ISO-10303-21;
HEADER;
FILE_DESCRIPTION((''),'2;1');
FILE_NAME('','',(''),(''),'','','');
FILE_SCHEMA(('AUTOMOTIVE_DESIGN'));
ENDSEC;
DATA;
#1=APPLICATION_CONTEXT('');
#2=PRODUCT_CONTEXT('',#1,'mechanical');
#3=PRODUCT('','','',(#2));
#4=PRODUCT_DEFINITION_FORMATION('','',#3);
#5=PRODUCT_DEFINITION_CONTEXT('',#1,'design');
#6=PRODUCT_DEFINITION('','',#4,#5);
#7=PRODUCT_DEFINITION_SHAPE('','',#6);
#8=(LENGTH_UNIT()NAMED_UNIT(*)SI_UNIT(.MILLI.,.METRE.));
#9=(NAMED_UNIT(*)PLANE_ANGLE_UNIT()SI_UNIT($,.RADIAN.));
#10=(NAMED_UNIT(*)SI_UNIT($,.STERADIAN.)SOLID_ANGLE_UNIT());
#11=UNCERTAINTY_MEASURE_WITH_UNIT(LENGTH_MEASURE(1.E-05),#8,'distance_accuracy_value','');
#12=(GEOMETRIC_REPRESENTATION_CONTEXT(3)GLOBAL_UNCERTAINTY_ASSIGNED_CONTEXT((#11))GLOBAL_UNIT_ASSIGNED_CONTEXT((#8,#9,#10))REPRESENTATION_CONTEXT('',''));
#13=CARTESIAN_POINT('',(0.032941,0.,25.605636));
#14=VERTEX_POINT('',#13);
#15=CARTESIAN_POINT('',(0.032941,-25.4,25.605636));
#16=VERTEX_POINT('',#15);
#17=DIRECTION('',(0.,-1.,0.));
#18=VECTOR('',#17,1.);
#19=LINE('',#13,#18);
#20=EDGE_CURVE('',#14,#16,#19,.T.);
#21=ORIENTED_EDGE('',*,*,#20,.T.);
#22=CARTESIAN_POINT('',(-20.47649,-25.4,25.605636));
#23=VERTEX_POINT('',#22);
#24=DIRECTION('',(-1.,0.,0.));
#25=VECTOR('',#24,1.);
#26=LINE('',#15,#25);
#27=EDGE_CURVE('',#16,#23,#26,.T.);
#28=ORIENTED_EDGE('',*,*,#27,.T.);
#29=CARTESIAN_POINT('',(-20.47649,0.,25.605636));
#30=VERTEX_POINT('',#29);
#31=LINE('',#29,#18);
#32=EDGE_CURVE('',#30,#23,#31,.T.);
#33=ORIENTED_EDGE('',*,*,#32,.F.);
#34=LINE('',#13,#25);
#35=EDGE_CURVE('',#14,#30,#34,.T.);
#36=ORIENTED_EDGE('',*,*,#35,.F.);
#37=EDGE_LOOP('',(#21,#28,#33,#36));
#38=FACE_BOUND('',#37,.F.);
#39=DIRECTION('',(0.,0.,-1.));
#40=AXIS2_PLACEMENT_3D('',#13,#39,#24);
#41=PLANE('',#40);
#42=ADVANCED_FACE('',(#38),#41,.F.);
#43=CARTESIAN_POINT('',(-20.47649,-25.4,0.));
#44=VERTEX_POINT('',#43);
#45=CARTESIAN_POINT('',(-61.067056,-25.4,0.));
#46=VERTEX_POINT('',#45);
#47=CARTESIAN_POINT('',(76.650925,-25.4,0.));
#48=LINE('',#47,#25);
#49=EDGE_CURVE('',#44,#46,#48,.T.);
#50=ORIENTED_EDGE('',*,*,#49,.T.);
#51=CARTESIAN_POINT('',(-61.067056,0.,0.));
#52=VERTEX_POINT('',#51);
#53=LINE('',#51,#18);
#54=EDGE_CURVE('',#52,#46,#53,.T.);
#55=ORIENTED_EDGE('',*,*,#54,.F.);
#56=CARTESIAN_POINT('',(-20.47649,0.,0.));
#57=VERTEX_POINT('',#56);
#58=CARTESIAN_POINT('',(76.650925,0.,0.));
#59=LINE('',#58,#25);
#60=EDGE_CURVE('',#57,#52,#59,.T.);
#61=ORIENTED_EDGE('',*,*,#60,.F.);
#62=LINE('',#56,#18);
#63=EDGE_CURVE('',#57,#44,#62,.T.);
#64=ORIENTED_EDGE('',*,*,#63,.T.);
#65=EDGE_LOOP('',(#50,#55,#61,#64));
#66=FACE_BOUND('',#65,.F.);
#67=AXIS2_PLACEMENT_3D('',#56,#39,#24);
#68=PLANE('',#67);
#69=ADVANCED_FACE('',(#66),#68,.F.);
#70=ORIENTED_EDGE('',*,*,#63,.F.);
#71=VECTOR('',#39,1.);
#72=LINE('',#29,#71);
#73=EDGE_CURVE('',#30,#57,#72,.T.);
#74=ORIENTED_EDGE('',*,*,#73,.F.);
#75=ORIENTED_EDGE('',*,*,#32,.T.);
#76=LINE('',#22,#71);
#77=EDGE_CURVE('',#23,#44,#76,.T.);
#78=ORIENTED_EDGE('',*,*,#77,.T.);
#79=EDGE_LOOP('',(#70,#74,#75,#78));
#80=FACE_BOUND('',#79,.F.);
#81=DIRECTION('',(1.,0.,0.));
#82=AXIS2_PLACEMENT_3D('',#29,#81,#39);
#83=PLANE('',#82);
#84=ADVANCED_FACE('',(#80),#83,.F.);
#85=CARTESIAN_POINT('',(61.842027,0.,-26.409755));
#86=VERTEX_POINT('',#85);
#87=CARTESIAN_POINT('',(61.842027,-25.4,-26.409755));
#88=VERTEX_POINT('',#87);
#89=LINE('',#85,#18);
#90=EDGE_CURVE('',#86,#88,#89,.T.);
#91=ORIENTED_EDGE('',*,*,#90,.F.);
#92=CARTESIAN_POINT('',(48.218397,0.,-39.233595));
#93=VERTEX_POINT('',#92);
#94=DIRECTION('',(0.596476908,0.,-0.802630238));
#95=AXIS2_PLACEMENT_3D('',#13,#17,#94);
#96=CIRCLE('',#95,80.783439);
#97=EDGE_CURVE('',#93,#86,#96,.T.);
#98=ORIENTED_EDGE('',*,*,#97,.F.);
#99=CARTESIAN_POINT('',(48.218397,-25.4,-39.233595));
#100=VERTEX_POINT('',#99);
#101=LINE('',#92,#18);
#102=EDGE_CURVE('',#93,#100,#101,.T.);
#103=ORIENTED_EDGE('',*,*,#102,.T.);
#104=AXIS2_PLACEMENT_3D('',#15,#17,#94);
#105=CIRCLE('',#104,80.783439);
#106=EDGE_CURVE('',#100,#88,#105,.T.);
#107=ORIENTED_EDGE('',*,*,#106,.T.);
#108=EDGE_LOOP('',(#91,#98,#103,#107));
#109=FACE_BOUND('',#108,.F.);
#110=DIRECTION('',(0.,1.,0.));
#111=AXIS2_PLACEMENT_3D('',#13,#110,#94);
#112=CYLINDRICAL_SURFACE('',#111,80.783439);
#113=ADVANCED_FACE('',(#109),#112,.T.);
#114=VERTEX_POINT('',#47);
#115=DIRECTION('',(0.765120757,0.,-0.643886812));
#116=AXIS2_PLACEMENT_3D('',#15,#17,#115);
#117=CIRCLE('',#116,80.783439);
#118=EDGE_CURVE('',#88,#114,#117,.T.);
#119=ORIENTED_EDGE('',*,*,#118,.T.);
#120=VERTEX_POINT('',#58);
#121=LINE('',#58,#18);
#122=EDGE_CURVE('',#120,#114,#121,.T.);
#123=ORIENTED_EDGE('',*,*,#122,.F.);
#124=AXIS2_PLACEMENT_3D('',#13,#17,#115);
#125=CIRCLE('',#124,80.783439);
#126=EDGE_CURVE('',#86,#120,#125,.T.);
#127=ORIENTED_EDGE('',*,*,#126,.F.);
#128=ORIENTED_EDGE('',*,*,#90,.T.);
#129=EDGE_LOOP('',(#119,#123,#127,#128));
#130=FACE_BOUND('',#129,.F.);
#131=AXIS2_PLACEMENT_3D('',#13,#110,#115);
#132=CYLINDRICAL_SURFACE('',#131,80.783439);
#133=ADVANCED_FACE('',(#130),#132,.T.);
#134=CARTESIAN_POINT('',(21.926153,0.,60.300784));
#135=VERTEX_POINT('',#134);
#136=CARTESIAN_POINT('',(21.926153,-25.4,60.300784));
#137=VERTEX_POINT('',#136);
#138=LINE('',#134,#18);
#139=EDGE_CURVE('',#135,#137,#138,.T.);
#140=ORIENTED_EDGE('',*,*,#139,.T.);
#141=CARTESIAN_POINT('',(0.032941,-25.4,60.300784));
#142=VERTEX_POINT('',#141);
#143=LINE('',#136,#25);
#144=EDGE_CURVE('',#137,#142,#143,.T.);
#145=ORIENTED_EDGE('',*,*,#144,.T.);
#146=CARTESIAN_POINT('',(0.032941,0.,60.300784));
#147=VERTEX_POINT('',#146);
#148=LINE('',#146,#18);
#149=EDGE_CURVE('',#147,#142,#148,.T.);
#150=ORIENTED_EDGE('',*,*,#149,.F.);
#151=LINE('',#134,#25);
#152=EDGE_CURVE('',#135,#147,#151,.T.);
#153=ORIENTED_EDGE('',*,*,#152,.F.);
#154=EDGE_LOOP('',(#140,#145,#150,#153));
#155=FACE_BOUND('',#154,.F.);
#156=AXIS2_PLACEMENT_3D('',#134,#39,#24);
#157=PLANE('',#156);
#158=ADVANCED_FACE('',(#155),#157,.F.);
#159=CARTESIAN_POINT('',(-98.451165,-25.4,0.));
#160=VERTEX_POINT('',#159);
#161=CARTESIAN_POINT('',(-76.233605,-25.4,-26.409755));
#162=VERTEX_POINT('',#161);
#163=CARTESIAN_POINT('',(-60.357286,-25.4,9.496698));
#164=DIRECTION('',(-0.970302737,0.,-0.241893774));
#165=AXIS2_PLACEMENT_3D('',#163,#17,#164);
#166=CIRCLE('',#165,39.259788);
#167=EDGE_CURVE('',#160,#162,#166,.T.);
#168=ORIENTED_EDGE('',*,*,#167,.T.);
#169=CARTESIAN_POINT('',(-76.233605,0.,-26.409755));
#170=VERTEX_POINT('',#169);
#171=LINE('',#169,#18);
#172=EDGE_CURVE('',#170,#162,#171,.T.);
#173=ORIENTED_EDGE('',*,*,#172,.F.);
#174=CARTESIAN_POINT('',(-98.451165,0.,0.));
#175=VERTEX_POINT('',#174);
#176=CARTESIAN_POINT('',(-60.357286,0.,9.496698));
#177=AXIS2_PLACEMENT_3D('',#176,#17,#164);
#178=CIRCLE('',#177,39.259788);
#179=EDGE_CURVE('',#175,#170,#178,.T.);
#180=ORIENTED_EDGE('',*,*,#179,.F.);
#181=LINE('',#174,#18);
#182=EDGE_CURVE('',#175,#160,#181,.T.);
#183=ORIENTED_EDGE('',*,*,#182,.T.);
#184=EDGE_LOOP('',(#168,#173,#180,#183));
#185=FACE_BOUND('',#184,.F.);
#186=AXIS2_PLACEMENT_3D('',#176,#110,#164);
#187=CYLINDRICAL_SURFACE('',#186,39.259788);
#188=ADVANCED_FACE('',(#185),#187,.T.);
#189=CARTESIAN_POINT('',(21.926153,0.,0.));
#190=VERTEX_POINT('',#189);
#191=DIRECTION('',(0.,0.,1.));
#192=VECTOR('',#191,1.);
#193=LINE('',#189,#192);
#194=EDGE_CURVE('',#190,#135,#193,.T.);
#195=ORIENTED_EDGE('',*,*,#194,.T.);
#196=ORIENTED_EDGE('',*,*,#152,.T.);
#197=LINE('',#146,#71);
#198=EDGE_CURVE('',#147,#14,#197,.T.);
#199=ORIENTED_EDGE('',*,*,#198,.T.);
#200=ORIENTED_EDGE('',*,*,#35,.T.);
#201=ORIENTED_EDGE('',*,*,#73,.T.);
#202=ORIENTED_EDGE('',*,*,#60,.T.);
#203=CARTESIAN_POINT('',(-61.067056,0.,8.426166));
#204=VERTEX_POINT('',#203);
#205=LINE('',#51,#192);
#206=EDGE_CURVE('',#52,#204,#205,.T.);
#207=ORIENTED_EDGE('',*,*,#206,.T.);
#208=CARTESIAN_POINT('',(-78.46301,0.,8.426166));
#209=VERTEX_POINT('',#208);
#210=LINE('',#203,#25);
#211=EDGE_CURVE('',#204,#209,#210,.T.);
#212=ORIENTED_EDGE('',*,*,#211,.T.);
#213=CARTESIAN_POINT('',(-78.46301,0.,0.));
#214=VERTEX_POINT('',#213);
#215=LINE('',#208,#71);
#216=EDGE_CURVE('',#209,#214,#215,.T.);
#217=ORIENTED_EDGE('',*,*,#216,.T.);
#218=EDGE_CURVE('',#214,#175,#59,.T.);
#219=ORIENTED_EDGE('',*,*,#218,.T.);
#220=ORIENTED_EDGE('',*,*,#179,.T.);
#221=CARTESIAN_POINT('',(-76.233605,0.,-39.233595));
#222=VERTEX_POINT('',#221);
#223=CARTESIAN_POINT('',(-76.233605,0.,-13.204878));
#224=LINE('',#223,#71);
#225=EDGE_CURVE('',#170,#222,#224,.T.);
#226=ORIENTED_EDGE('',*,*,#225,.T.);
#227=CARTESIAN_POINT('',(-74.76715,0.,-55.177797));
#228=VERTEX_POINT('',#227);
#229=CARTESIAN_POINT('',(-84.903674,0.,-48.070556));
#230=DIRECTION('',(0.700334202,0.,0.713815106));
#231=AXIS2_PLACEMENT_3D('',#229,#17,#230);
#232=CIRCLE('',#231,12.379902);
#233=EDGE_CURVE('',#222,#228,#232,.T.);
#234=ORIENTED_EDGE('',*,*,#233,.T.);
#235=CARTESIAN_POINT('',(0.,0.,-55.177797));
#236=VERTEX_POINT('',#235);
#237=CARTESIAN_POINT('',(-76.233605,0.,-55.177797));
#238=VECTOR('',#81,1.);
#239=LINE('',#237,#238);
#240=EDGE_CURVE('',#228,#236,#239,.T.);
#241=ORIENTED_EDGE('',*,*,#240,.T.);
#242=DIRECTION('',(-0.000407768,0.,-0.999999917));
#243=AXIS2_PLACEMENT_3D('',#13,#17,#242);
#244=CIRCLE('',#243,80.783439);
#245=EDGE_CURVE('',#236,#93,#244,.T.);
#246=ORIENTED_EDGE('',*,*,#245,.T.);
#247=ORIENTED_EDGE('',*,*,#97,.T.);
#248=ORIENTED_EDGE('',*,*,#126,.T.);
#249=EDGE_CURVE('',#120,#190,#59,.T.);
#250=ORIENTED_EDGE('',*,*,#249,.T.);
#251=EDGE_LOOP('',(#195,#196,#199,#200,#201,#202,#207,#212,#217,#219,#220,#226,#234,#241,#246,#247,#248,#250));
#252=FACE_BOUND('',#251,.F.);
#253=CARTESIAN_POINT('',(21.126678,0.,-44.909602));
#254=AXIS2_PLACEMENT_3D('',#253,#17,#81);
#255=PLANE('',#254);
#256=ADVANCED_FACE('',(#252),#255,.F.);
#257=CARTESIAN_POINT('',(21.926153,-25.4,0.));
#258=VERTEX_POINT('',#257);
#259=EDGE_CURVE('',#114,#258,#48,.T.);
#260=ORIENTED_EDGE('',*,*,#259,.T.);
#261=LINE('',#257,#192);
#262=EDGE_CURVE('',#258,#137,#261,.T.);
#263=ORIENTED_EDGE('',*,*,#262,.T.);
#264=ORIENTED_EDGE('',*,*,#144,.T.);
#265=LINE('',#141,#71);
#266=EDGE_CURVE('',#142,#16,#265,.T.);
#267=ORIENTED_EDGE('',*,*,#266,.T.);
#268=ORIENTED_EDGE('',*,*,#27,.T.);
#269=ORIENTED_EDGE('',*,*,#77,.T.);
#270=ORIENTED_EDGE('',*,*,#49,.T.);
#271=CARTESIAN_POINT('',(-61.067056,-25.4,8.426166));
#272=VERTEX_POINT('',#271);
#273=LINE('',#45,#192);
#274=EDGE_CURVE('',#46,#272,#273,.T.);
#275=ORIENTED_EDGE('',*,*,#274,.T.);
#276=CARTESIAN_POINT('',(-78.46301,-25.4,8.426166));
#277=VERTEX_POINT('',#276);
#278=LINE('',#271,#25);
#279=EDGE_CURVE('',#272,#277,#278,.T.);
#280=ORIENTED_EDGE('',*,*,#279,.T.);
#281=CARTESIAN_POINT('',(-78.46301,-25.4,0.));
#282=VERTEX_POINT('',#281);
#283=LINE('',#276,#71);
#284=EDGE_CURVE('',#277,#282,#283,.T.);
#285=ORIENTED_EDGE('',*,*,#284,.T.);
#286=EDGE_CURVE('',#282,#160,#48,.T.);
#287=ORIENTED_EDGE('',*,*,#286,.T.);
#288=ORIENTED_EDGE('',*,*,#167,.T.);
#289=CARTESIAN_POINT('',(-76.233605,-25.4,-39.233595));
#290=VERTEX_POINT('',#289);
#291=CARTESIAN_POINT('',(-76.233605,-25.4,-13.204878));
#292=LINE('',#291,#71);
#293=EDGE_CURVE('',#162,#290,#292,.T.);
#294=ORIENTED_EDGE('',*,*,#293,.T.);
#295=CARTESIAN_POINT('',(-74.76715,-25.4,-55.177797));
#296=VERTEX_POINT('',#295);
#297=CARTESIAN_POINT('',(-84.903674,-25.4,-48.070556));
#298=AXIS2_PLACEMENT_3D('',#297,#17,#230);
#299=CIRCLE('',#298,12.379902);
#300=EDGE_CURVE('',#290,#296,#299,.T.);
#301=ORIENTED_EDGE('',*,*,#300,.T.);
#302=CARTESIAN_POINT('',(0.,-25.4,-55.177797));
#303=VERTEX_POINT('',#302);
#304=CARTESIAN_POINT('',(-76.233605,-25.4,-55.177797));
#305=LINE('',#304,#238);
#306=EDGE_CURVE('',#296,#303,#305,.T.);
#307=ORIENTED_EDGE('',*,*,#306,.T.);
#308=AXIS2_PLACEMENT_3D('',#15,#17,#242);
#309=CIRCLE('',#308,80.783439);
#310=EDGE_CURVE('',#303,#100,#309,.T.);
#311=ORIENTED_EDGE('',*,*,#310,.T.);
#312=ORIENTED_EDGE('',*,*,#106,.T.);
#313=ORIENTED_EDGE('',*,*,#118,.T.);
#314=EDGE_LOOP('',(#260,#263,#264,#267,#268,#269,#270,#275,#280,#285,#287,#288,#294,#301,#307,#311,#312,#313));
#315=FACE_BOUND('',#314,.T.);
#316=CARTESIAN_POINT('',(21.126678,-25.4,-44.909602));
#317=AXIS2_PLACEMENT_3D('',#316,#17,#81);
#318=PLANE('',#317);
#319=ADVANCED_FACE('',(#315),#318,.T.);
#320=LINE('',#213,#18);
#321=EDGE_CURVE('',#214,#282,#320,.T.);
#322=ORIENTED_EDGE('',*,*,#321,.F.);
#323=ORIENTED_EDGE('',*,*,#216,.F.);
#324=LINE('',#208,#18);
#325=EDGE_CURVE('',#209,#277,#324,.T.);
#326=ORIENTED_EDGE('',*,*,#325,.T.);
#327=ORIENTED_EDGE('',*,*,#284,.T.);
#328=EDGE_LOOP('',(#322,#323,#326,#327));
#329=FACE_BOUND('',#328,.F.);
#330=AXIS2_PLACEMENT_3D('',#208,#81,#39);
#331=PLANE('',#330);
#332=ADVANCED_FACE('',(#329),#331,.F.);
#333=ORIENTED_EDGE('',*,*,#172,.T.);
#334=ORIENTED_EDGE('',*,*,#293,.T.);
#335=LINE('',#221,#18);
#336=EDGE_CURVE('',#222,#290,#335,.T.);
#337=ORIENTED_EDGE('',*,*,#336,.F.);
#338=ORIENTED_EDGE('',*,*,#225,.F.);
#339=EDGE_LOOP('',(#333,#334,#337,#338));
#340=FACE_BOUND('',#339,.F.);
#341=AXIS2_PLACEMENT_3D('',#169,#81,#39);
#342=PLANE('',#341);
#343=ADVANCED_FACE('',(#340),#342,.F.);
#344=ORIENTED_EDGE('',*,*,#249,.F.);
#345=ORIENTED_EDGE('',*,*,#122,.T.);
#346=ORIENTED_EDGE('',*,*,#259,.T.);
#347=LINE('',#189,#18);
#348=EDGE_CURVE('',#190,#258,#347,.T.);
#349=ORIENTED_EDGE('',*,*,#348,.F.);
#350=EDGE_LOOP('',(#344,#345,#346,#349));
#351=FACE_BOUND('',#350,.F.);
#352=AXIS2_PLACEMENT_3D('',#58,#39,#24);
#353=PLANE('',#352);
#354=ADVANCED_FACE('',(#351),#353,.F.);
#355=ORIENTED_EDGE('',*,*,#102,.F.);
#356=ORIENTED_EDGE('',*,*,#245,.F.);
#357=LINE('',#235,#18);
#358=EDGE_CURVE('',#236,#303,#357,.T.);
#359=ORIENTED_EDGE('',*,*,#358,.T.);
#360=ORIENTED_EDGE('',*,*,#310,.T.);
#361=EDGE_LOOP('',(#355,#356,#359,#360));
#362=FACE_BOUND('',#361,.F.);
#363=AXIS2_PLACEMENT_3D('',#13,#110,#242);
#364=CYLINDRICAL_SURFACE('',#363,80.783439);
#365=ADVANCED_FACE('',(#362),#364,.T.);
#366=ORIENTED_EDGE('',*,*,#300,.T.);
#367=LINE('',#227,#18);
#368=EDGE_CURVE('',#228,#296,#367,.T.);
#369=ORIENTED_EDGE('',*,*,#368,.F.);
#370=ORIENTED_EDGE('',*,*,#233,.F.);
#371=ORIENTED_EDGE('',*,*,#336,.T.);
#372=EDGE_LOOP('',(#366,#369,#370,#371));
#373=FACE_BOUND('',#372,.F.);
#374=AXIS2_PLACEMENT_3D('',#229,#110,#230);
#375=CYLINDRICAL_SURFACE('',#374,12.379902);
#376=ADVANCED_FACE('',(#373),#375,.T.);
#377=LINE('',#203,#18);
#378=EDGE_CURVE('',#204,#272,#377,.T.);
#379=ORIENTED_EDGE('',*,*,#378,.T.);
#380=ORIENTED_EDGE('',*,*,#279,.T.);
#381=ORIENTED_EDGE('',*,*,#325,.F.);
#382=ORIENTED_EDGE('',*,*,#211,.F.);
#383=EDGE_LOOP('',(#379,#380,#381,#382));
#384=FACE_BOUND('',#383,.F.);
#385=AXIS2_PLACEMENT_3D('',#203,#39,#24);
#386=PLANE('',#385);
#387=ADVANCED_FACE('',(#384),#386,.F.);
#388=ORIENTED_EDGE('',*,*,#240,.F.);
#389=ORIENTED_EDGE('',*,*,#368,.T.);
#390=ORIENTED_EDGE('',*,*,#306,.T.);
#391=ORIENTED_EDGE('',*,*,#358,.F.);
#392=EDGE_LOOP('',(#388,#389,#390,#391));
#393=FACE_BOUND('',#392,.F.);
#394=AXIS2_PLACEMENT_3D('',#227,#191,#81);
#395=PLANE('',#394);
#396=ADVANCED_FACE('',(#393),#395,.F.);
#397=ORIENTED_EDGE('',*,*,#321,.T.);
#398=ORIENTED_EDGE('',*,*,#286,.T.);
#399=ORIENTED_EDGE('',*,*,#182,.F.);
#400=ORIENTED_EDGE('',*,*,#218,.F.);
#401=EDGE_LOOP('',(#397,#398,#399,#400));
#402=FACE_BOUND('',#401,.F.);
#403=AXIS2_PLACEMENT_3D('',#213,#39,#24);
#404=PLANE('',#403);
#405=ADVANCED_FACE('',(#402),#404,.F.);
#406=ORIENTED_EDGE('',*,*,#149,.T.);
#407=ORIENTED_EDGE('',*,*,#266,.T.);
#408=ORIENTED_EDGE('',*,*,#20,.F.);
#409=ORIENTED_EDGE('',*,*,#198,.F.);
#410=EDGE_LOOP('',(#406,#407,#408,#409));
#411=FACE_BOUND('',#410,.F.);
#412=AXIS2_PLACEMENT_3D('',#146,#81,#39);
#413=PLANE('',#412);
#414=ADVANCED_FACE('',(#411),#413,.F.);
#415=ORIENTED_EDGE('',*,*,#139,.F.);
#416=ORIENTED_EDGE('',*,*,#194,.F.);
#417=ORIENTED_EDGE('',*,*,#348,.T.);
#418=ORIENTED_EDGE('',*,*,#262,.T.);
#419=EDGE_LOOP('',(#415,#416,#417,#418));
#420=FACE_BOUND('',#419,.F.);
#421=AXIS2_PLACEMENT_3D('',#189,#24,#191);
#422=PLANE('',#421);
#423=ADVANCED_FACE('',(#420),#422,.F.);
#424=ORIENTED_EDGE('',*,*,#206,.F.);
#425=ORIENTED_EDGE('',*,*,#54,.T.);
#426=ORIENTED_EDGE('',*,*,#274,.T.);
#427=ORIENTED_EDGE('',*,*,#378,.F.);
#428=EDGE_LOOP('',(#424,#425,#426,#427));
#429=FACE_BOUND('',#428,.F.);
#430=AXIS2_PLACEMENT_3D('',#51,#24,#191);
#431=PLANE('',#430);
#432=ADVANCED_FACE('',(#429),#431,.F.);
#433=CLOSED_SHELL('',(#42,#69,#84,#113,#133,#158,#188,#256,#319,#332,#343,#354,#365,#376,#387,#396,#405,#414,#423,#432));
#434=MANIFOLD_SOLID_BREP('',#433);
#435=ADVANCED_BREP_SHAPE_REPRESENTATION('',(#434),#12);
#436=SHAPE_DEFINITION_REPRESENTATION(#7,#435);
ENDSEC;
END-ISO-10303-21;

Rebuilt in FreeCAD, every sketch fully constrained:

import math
import FreeCAD as App
import Part
import Sketcher
Q = App.Units.Quantity

doc = App.newDocument("Part")
body = doc.addObject("PartDesign::Body", "Body")

# Sketch on XZ plane
sketch1 = doc.addObject("Sketcher::SketchObject", "Sketch")
body.addObject(sketch1)
sketch1.AttachmentSupport = (doc.XZ_Plane, [""])
sketch1.MapMode = "FlatFace"
sketch1.addGeometry([
    Part.ArcOfCircle(Part.Circle(App.Vector(0.032941, 25.605636, 0), App.Vector(0, 0, 1), 80.783439), math.radians(-90.023363), math.radians(-53.382011)),  # 0
    Part.ArcOfCircle(Part.Circle(App.Vector(0.032941, 25.605636, 0), App.Vector(0, 0, 1), 80.783439), math.radians(-53.382011), math.radians(-40.082264)),  # 1
    Part.ArcOfCircle(Part.Circle(App.Vector(0.032941, 25.605636, 0), App.Vector(0, 0, 1), 80.783439), math.radians(-40.082264), math.radians(-18.479565)),  # 2
    Part.LineSegment(App.Vector(76.650925, 0, 0), App.Vector(21.926153, 0, 0)),  # 3
    Part.LineSegment(App.Vector(21.926153, 0, 0), App.Vector(21.926153, 60.300784, 0)),  # 4
    Part.LineSegment(App.Vector(21.926153, 60.300784, 0), App.Vector(0.032941, 60.300784, 0)),  # 5
    Part.LineSegment(App.Vector(0.032941, 60.300784, 0), App.Vector(0.032941, 25.605636, 0)),  # 6
    Part.LineSegment(App.Vector(0.032941, 25.605636, 0), App.Vector(-20.47649, 25.605636, 0)),  # 7
    Part.LineSegment(App.Vector(-20.47649, 25.605636, 0), App.Vector(-20.47649, 0, 0)),  # 8
    Part.LineSegment(App.Vector(-20.47649, 0, 0), App.Vector(-61.067056, 0, 0)),  # 9
    Part.LineSegment(App.Vector(-61.067056, 0, 0), App.Vector(-61.067056, 8.426166, 0)),  # 10
    Part.LineSegment(App.Vector(-61.067056, 8.426166, 0), App.Vector(-78.46301, 8.426166, 0)),  # 11
    Part.LineSegment(App.Vector(-78.46301, 8.426166, 0), App.Vector(-78.46301, 0, 0)),  # 12
    Part.LineSegment(App.Vector(-78.46301, 0, 0), App.Vector(-98.451165, 0, 0)),  # 13
    Part.ArcOfCircle(Part.Circle(App.Vector(-60.357286, 9.496698, 0), App.Vector(0, 0, 1), 39.259788), math.radians(-166.001661), math.radians(-113.852993)),  # 14
    Part.LineSegment(App.Vector(-76.233605, -26.409755, 0), App.Vector(-76.233605, -39.233595, 0)),  # 15
    Part.ArcOfCircle(Part.Circle(App.Vector(-84.903674, -48.070556, 0), App.Vector(0, 0, 1), 12.379902), math.radians(45.546177), math.radians(324.96372)),  # 16
    Part.LineSegment(App.Vector(-74.76715, -55.177797, 0), App.Vector(0, -55.177797, 0)),  # 17
], False)
sketch1.addConstraint([
    Sketcher.Constraint("Tangent", 0, 2, 1, 1),
    Sketcher.Constraint("Tangent", 1, 2, 2, 1),
    Sketcher.Constraint("Coincident", 2, 2, 3, 1),
    Sketcher.Constraint("Coincident", 3, 2, 4, 1),
    Sketcher.Constraint("Coincident", 4, 2, 5, 1),
    Sketcher.Constraint("Coincident", 5, 2, 6, 1),
    Sketcher.Constraint("Coincident", 6, 2, 7, 1),
    Sketcher.Constraint("Coincident", 7, 2, 8, 1),
    Sketcher.Constraint("Coincident", 8, 2, 9, 1),
    Sketcher.Constraint("Coincident", 9, 2, 10, 1),
    Sketcher.Constraint("Coincident", 10, 2, 11, 1),
    Sketcher.Constraint("Coincident", 11, 2, 12, 1),
    Sketcher.Constraint("Coincident", 12, 2, 13, 1),
    Sketcher.Constraint("Coincident", 13, 2, 14, 1),
    Sketcher.Constraint("Coincident", 14, 2, 15, 1),
    Sketcher.Constraint("Coincident", 15, 2, 16, 1),
    Sketcher.Constraint("Coincident", 16, 2, 17, 1),
    Sketcher.Constraint("Coincident", 17, 2, 0, 1),
    Sketcher.Constraint("Horizontal", 3),
    Sketcher.Constraint("Vertical", 4),
    Sketcher.Constraint("Horizontal", 5),
    Sketcher.Constraint("Vertical", 6),
    Sketcher.Constraint("Horizontal", 7),
    Sketcher.Constraint("Vertical", 8),
    Sketcher.Constraint("Horizontal", 9),
    Sketcher.Constraint("Vertical", 10),
    Sketcher.Constraint("Horizontal", 11),
    Sketcher.Constraint("Vertical", 12),
    Sketcher.Constraint("Horizontal", 13),
    Sketcher.Constraint("Vertical", 15),
    Sketcher.Constraint("Horizontal", 17),
    Sketcher.Constraint("Coincident", 2, 3, 0, 3),
    Sketcher.Constraint("Coincident", 6, 2, 0, 3),
    Sketcher.Constraint("PointOnObject", 2, 2, -1),
    Sketcher.Constraint("PointOnObject", 8, 2, -1),
    Sketcher.Constraint("PointOnObject", 12, 2, -1),
    Sketcher.Constraint("PointOnObject", 17, 2, -2),
    Sketcher.Constraint("Horizontal", 1, 2, 14, 2),
    Sketcher.Constraint("Horizontal", 0, 2, 15, 2),
    Sketcher.Constraint("Radius", 0, Q("80.783439 mm")),
    Sketcher.Constraint("Radius", 14, Q("39.259788 mm")),
    Sketcher.Constraint("Radius", 16, Q("12.379902 mm")),
    Sketcher.Constraint("DistanceY", 16, 2, 14, 2, Q("1.1326001 in")),
    Sketcher.Constraint("DistanceX", 3, 2, 3, 1, Q("54.724772 mm")),
    Sketcher.Constraint("DistanceX", 7, 2, 7, 1, Q("20.509431 mm")),
    Sketcher.Constraint("DistanceX", 17, 1, 17, 2, Q("74.76715 mm")),
    Sketcher.Constraint("DistanceY", 15, 2, 15, 1, Q("12.82384 mm")),
    Sketcher.Constraint("DistanceY", -1, 1, 14, 3, Q("9.496698 mm")),
    Sketcher.Constraint("DistanceY", 16, 3, 14, 2, Q("21.660801 mm")),
    Sketcher.Constraint("DistanceX", 5, 2, 5, 1, Q("21.893213 mm")),
    Sketcher.Constraint("DistanceX", 9, 2, 9, 1, Q("40.590566 mm")),
    Sketcher.Constraint("DistanceX", 11, 2, 11, 1, Q("17.395955 mm")),
    Sketcher.Constraint("DistanceX", 13, 2, 13, 1, Q("19.988154 mm")),
    Sketcher.Constraint("DistanceY", 4, 1, 4, 2, Q("60.300784 mm")),
    Sketcher.Constraint("DistanceY", 10, 1, 10, 2, Q("8.426166 mm")),
])
pad1 = doc.addObject("PartDesign::Pad", "Pad")
body.addObject(pad1)
pad1.Profile = sketch1
pad1.Length = Q("1 in")

doc.recompute()
